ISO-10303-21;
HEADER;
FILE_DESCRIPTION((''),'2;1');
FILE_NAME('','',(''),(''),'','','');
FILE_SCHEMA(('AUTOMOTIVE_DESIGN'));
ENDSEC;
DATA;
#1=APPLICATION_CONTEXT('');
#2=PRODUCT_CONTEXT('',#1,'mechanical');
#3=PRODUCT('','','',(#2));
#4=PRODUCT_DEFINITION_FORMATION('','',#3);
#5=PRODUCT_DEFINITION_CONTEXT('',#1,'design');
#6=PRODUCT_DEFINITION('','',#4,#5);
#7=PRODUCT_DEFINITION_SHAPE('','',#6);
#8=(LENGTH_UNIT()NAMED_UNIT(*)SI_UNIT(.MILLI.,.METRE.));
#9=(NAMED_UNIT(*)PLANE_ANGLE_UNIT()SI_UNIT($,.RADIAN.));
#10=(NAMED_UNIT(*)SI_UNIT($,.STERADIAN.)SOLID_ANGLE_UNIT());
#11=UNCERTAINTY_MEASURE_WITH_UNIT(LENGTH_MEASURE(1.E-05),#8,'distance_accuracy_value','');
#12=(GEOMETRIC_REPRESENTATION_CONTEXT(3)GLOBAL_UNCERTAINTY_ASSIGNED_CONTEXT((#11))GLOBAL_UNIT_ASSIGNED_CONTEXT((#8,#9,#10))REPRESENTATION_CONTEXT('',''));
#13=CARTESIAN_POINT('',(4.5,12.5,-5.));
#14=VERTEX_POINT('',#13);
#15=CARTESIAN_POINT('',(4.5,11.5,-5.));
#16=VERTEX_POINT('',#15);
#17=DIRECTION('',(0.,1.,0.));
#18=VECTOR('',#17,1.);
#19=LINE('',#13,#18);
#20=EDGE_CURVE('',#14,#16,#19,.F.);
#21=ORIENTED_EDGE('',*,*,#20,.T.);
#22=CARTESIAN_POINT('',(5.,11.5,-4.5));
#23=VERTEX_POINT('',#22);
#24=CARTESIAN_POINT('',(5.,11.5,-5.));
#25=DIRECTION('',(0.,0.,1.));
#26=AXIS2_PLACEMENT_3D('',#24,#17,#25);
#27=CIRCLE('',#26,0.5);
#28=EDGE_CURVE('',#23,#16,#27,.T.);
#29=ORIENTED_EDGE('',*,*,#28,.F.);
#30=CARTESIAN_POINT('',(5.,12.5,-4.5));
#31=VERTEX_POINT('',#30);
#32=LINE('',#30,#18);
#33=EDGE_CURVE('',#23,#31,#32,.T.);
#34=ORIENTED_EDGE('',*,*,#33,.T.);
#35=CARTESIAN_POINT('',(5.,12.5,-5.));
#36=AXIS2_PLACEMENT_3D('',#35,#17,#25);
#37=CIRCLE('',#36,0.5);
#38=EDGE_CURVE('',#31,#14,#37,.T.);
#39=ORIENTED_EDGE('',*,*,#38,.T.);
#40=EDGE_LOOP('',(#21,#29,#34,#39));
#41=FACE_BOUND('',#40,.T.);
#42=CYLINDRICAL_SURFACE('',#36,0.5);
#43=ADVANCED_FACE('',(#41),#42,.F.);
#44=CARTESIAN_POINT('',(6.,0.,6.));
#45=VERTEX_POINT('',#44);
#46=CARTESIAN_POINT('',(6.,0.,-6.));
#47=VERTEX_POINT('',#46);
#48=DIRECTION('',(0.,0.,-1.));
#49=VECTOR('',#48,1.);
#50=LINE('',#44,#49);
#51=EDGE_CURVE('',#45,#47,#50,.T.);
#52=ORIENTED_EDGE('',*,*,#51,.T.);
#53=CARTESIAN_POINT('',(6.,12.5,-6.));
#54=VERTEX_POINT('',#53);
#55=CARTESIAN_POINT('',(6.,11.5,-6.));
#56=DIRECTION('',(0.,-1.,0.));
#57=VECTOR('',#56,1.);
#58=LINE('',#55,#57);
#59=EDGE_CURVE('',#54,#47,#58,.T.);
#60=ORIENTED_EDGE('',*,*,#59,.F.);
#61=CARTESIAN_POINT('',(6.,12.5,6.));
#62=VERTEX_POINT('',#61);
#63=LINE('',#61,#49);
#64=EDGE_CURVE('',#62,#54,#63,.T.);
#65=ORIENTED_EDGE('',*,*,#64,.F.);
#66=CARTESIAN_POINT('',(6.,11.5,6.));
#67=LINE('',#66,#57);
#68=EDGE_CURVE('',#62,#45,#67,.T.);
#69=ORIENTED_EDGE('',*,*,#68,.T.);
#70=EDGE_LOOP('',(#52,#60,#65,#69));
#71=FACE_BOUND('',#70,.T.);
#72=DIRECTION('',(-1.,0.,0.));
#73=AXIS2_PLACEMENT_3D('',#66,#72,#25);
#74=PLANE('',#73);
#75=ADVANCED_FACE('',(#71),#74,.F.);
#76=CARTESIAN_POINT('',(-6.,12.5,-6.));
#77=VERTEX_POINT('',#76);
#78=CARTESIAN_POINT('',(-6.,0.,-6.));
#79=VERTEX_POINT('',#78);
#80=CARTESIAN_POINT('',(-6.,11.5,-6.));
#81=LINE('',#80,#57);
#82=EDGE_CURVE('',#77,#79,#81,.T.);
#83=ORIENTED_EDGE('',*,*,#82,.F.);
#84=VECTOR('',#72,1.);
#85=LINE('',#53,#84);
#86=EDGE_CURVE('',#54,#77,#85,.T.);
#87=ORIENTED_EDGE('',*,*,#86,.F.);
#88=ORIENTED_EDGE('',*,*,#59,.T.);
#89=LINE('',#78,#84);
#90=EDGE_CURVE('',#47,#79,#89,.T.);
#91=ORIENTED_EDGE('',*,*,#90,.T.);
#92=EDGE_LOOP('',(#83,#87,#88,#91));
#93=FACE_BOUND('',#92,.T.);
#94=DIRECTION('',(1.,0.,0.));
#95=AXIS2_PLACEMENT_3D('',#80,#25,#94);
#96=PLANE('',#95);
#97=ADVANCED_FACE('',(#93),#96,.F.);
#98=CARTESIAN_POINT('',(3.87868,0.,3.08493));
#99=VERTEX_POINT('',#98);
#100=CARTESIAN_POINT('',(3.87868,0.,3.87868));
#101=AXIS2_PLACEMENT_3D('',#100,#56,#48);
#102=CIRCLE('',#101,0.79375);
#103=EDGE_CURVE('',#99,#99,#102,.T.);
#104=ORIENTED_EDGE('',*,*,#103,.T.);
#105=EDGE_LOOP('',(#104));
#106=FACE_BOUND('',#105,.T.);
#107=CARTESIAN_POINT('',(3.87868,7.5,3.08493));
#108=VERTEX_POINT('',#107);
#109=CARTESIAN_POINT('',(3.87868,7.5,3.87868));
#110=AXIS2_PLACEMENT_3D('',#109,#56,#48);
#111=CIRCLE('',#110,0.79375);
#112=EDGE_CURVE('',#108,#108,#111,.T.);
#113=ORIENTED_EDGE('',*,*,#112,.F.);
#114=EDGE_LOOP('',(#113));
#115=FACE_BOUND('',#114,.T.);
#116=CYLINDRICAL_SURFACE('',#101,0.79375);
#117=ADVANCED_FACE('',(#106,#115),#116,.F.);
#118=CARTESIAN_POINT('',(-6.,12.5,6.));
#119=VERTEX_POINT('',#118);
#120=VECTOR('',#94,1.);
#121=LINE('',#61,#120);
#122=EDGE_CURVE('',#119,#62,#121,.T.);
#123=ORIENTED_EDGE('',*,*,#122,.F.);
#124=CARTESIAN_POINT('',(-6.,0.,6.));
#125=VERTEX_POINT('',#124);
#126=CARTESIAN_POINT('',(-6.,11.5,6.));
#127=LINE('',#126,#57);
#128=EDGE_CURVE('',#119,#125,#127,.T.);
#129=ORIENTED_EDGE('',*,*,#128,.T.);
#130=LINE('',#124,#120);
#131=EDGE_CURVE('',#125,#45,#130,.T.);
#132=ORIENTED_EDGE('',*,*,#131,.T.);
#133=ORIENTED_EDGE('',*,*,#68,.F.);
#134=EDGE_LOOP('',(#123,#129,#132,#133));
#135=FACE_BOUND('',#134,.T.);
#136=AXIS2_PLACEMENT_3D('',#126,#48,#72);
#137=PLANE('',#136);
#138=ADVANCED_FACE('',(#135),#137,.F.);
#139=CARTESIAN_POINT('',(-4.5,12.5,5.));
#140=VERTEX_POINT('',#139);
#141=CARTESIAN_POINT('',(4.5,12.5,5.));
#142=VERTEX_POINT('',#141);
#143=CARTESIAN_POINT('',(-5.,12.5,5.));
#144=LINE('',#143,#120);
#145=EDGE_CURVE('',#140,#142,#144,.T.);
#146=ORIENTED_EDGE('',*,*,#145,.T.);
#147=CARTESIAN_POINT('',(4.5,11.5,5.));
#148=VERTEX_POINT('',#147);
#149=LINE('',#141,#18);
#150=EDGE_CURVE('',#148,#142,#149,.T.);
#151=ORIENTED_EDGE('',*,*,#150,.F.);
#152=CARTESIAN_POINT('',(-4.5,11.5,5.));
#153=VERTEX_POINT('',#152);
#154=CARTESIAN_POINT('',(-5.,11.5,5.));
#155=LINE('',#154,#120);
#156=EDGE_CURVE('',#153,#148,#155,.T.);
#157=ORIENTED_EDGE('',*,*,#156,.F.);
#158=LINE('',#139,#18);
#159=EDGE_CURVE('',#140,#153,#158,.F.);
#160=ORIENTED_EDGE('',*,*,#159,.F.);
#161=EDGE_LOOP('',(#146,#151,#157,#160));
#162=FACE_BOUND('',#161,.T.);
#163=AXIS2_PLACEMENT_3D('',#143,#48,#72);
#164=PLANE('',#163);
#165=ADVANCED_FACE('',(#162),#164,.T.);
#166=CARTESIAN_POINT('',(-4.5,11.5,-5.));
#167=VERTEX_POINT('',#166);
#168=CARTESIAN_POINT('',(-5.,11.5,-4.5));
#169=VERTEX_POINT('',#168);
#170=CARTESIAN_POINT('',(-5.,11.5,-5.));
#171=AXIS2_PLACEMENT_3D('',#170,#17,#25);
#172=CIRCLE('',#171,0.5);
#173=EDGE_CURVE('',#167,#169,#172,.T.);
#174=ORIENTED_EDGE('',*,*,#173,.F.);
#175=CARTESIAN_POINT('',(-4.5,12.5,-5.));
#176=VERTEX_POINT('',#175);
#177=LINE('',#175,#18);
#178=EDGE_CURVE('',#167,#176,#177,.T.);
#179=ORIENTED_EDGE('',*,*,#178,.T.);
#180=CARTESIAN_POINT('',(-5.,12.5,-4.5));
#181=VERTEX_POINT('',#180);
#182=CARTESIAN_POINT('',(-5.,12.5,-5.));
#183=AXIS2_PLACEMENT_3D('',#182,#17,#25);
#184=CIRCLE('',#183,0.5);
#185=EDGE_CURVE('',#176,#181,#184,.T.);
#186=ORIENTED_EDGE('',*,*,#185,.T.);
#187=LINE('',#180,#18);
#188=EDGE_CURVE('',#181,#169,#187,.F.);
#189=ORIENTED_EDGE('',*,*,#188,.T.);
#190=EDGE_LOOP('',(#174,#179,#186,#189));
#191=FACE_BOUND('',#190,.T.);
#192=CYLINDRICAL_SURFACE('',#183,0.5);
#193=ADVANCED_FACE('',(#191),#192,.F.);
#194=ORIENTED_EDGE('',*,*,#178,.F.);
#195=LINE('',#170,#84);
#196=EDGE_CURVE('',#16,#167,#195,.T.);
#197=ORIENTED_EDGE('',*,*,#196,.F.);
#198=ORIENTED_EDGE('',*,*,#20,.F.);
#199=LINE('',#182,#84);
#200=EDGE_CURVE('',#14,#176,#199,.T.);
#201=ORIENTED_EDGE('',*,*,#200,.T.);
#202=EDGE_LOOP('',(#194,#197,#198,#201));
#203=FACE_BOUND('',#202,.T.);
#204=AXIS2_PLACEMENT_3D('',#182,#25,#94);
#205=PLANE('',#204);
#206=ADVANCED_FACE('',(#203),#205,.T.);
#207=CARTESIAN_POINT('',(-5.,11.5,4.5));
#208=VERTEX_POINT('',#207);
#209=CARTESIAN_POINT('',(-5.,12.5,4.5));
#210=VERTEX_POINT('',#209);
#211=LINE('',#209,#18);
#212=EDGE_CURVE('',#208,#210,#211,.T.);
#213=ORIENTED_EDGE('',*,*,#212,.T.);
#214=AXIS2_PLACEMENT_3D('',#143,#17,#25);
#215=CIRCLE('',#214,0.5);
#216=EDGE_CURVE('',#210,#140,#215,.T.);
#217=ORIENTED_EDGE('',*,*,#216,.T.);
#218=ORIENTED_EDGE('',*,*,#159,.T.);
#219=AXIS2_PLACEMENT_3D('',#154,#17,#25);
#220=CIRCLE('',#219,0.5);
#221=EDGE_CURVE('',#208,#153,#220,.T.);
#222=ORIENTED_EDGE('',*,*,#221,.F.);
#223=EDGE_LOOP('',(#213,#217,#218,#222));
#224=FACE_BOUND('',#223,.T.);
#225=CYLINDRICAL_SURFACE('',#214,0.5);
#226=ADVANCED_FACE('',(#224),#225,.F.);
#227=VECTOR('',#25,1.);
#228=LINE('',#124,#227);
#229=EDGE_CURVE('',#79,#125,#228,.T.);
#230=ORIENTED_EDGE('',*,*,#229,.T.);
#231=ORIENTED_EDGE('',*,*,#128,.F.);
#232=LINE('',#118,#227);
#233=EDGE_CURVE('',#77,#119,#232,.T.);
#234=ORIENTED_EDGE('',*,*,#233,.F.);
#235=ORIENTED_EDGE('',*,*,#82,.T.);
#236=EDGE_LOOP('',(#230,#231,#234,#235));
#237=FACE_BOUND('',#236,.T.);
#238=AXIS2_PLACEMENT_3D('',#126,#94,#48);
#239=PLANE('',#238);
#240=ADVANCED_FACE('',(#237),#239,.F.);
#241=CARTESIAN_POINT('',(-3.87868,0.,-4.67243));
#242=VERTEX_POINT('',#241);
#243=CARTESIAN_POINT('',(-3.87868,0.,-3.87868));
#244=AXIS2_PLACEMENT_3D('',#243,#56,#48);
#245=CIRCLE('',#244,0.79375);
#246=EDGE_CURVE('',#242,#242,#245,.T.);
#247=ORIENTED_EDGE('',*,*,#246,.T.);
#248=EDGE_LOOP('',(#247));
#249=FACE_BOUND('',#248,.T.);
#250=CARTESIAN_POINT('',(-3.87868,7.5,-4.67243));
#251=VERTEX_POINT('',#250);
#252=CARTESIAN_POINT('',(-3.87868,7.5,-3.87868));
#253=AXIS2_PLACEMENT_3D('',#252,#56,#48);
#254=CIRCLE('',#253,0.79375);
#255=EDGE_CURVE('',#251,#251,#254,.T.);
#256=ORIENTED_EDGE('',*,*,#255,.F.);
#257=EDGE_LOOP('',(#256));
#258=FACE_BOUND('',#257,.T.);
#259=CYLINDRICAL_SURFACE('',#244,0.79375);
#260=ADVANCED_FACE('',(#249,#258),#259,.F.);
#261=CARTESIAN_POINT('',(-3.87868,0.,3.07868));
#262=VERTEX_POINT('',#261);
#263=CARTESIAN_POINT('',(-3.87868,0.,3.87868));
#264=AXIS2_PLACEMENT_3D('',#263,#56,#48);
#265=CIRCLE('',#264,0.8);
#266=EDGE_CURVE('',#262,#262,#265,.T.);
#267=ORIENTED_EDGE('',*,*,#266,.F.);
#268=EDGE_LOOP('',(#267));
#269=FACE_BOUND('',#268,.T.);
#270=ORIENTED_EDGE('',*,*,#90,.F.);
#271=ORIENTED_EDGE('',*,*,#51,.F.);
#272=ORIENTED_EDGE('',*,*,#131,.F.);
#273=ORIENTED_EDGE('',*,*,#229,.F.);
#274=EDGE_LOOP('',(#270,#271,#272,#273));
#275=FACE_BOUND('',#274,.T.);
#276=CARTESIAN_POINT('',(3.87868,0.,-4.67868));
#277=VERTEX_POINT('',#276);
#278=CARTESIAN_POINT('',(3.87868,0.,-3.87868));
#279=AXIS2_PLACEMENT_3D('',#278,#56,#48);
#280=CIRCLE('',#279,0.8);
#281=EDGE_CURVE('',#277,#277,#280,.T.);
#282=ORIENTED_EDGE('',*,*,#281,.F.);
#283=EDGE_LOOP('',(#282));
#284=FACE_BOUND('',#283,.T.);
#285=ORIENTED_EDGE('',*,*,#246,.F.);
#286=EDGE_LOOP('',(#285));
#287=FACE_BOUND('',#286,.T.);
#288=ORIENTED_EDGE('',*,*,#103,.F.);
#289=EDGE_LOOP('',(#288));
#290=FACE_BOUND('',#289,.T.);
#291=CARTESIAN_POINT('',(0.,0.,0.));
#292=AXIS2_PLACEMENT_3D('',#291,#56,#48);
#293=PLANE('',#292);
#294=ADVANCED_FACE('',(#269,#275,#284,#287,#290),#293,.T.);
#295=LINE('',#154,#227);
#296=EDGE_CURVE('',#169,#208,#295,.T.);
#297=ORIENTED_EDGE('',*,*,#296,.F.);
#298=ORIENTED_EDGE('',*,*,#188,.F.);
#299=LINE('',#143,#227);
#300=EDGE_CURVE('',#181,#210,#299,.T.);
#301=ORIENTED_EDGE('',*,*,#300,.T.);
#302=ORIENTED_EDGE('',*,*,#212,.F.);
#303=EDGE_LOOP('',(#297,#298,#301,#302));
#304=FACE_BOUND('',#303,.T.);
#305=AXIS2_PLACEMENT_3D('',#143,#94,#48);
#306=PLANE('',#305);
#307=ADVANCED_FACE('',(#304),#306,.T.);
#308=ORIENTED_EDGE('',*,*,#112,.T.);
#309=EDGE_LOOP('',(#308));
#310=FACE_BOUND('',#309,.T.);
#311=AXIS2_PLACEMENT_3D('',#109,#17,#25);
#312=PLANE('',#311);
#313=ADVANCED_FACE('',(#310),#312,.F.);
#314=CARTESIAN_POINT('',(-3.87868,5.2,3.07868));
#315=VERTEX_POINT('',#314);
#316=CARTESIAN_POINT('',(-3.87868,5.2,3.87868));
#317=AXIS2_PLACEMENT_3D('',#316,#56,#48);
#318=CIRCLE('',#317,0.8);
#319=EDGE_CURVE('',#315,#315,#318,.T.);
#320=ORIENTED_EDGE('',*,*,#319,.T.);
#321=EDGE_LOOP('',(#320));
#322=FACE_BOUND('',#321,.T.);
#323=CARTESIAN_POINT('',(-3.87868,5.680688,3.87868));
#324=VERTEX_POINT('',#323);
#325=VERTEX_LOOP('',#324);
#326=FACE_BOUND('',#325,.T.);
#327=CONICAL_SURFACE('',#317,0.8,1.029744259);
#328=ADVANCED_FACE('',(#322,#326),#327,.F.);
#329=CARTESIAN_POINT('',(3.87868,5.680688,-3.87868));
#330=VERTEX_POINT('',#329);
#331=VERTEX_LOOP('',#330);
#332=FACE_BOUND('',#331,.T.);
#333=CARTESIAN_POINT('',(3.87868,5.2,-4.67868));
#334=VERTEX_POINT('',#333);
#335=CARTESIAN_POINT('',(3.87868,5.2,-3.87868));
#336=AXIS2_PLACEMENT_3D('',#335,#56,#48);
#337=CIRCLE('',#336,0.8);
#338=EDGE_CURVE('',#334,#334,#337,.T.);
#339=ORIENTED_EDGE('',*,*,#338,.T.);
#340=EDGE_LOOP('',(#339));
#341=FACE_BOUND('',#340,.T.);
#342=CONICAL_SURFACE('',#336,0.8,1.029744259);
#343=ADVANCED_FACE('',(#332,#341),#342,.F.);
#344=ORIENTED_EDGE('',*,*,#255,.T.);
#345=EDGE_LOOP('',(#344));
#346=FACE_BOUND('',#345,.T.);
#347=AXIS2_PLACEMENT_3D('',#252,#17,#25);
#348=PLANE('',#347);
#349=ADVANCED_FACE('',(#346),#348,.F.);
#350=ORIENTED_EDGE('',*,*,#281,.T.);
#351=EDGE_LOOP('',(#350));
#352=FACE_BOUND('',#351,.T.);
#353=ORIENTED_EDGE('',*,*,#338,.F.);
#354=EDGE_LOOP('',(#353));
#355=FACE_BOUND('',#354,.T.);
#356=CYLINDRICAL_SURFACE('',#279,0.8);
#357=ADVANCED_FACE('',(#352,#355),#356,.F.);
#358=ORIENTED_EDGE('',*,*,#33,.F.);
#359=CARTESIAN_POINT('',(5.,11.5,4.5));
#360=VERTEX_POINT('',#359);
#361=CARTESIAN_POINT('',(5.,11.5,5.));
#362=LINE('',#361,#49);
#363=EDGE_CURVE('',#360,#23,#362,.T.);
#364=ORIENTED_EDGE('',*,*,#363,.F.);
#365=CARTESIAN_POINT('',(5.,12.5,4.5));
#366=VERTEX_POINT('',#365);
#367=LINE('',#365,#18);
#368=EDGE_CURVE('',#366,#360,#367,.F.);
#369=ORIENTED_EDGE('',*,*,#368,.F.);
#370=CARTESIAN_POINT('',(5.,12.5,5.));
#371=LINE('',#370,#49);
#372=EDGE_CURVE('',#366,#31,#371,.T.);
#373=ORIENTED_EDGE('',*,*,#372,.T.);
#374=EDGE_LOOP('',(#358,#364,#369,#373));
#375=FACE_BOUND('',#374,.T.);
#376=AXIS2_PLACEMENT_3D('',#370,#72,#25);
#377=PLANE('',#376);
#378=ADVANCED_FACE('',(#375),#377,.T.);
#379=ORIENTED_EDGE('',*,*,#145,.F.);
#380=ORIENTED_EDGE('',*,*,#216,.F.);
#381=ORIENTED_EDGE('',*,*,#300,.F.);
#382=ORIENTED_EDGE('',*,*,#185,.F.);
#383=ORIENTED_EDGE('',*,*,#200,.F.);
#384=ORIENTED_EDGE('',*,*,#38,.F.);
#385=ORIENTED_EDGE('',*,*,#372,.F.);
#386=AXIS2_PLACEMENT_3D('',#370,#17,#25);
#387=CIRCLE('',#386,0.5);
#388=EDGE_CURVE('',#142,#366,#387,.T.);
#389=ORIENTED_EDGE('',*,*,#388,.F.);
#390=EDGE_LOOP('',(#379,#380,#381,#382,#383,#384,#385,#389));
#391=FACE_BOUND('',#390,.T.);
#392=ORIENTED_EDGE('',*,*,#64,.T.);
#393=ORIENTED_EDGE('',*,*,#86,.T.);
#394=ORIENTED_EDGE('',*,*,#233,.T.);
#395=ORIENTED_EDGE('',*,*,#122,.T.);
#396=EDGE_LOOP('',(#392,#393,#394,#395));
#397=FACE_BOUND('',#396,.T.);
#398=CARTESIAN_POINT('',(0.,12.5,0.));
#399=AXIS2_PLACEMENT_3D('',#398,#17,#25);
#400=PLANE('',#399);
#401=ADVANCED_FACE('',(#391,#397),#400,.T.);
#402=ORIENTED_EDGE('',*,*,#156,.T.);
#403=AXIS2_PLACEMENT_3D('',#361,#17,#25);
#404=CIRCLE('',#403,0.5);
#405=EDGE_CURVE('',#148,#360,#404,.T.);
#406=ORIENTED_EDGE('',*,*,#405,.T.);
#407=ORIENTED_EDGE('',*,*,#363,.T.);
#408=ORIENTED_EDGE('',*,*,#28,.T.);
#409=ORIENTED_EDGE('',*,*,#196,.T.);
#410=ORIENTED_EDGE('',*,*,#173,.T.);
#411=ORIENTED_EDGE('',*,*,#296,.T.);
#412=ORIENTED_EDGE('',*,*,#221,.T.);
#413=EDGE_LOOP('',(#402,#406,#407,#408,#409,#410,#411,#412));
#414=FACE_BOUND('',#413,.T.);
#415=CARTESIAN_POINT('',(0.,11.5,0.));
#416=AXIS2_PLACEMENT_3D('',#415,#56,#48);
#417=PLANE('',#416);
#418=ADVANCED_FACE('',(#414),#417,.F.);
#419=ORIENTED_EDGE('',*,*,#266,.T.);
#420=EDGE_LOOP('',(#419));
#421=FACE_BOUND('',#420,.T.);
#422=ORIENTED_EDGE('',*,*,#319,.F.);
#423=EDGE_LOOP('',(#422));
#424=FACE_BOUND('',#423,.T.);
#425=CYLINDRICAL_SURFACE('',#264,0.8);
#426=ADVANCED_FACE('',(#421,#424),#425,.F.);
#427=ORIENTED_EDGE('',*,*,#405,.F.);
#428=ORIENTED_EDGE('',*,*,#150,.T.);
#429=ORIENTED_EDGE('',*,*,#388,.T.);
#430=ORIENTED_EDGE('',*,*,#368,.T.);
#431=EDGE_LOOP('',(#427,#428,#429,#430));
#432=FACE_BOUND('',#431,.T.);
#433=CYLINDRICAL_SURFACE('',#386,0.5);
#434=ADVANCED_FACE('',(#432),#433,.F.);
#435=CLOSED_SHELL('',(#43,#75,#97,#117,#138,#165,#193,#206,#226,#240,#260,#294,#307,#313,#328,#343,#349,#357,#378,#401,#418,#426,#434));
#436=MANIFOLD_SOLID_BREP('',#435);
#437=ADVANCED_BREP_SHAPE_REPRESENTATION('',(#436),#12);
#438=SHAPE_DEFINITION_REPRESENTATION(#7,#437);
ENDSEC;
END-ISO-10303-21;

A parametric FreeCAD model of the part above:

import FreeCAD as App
import Part
import Sketcher
from FreeCAD import Vector
Q = App.Units.Quantity


def add_polygon(sketch, points):
    """Adds a closed chain of lines whose ends are joined by coincident constraints."""
    first, n = sketch.GeometryCount, len(points)
    for a, b in zip(points, points[1:] + points[:1]):
        sketch.addGeometry(Part.LineSegment(App.Vector(*a, 0), App.Vector(*b, 0)), False)
    for i in range(n):
        sketch.addConstraint(Sketcher.Constraint("Coincident", first + i, 2, first + (i + 1) % n, 1))

doc = App.newDocument("Part")
body = doc.addObject("PartDesign::Body", "Body")

# Sketch on XZ plane
sketch1 = body.newObject("Sketcher::SketchObject", "Sketch")
sketch1.AttachmentSupport = (doc.getObject("XZ_Plane"), [""])
sketch1.MapMode = "FlatFace"
add_polygon(sketch1, [(-6, -6), (-6, 6), (6, 6), (6, -6)])  # lines 0-3
sketch1.addConstraint([
    Sketcher.Constraint("Vertical", 0),
    Sketcher.Constraint("Horizontal", 1),
    Sketcher.Constraint("Vertical", 2),
    Sketcher.Constraint("Horizontal", 3),
    Sketcher.Constraint("Symmetric", 0, 2, 2, 2, -1, 1),
    Sketcher.Constraint("Equal", 3, 0),
    Sketcher.Constraint("DistanceX", 1, 1, 1, 2, Q("12 mm")),
])
pad1 = body.newObject("PartDesign::Pad", "Pad")
pad1.Profile = sketch1
pad1.Length = 11.5
pad1.Reversed = True

# Sketch on XZ plane
sketch2 = body.newObject("Sketcher::SketchObject", "Sketch001")
sketch2.AttachmentSupport = (doc.getObject("XZ_Plane"), [""])
sketch2.MapMode = "FlatFace"
sketch2.AttachmentOffset = App.Placement(Vector(0, 0, -11.5), App.Rotation())
add_polygon(sketch2, [(-6, -6), (-6, 6), (6, 6), (6, -6)])  # lines 0-3
add_polygon(sketch2, [(5, 5), (-5, 5), (-5, -5), (5, -5)])  # lines 4-7
sketch2.addConstraint([
    Sketcher.Constraint("Vertical", 0),
    Sketcher.Constraint("Horizontal", 1),
    Sketcher.Constraint("Vertical", 2),
    Sketcher.Constraint("Horizontal", 3),
    Sketcher.Constraint("Horizontal", 4),
    Sketcher.Constraint("Vertical", 5),
    Sketcher.Constraint("Horizontal", 6),
    Sketcher.Constraint("Vertical", 7),
    Sketcher.Constraint("Symmetric", 0, 2, 2, 2, -1, 1),
    Sketcher.Constraint("Symmetric", 4, 2, 6, 2, -1, 1),
    Sketcher.Constraint("Equal", 3, 0),
    Sketcher.Constraint("Equal", 6, 5),
    Sketcher.Constraint("DistanceX", 1, 1, 1, 2, Q("12 mm")),
    Sketcher.Constraint("DistanceX", 4, 2, 4, 1, Q("10 mm")),
])
pad2 = body.newObject("PartDesign::Pad", "Pad001")
pad2.Profile = sketch2
pad2.Length = 1
pad2.Reversed = True

# Sketch on XZ plane
sketch3 = body.newObject("Sketcher::SketchObject", "Sketch002")
sketch3.AttachmentSupport = (doc.getObject("XZ_Plane"), [""])
sketch3.MapMode = "FlatFace"
sketch3.AttachmentOffset = App.Placement(Vector(0, 0, -12.5), App.Rotation())
sketch3.addGeometry([
    Part.Circle(Vector(-5, -5, 0), Vector(0, 0, 1), 0.5),
    Part.Circle(Vector(5, -5, 0), Vector(0, 0, 1), 0.5),
    Part.Circle(Vector(5, 5, 0), Vector(0, 0, 1), 0.5),
    Part.Circle(Vector(-5, 5, 0), Vector(0, 0, 1), 0.5),
], False)
sketch3.addConstraint([
    Sketcher.Constraint("Equal", 0, 1),
    Sketcher.Constraint("Equal", 1, 2),
    Sketcher.Constraint("Equal", 2, 3),
    Sketcher.Constraint("Symmetric", 0, 3, 2, 3, -1, 1),
    Sketcher.Constraint("Symmetric", 1, 3, 3, 3, -1, 1),
    Sketcher.Constraint("Symmetric", 0, 3, 1, 3, -2),
    Sketcher.Constraint("Diameter", 0, Q("1 mm")),
    Sketcher.Constraint("DistanceX", 0, 3, -1, 1, Q("5 mm")),
    Sketcher.Constraint("DistanceY", 0, 3, -1, 1, Q("5 mm")),
])
doc.recompute()
hole = body.newObject("PartDesign::Hole", "Hole")
hole.Profile = sketch3
hole.ThreadType = "None"
hole.Diameter = 1
hole.DepthType = "Dimension"
hole.Depth = 1
hole.DrillPoint = "Flat"
hole.Reversed = True

# Sketch on XZ plane
sketch4 = body.newObject("Sketcher::SketchObject", "Sketch003")
sketch4.AttachmentSupport = (doc.getObject("XZ_Plane"), [""])
sketch4.MapMode = "FlatFace"
sketch4.addGeometry([
    Part.Circle(Vector(-3.9, -3.9, 0), Vector(0, 0, 1), 0.8),
    Part.Circle(Vector(3.9, 3.9, 0), Vector(0, 0, 1), 0.8),
], False)
sketch4.addConstraint([
    Sketcher.Constraint("Equal", 0, 1),
    Sketcher.Constraint("Symmetric", 0, 3, 1, 3, -1, 1),
    Sketcher.Constraint("Diameter", 0, Q("1.5875 mm")),
    Sketcher.Constraint("DistanceX", 0, 3, -1, 1, Q("3.87868 mm")),
    Sketcher.Constraint("DistanceY", 0, 3, -1, 1, Q("3.87868 mm")),
])
doc.recompute()
hole2 = body.newObject("PartDesign::Hole", "Hole001")
hole2.Profile = sketch4
hole2.ThreadType = "None"
hole2.Diameter = 1.5875
hole2.DepthType = "Dimension"
hole2.Depth = 7.5
hole2.DrillPoint = "Flat"

# Sketch on XZ plane
sketch5 = body.newObject("Sketcher::SketchObject", "Sketch004")
sketch5.AttachmentSupport = (doc.getObject("XZ_Plane"), [""])
sketch5.MapMode = "FlatFace"
sketch5.addGeometry([
    Part.Circle(Vector(-3.9, 3.9, 0), Vector(0, 0, 1), 0.8),
    Part.Circle(Vector(3.9, -3.9, 0), Vector(0, 0, 1), 0.8),
], False)
sketch5.addConstraint([
    Sketcher.Constraint("Equal", 0, 1),
    Sketcher.Constraint("Symmetric", 0, 3, 1, 3, -1, 1),
    Sketcher.Constraint("Diameter", 0, Q("1.6 mm")),
    Sketcher.Constraint("DistanceX", 0, 3, -1, 1, Q("3.87868 mm")),
    Sketcher.Constraint("DistanceY", -1, 1, 0, 3, Q("3.87868 mm")),
])
doc.recompute()
hole3 = body.newObject("PartDesign::Hole", "Hole002")
hole3.Profile = sketch5
hole3.ThreadType = "None"
hole3.Diameter = 1.6
hole3.DepthType = "Dimension"
hole3.Depth = 5.2
hole3.DrillPoint = "Angled"
hole3.DrillPointAngle = 118

doc.recompute()
